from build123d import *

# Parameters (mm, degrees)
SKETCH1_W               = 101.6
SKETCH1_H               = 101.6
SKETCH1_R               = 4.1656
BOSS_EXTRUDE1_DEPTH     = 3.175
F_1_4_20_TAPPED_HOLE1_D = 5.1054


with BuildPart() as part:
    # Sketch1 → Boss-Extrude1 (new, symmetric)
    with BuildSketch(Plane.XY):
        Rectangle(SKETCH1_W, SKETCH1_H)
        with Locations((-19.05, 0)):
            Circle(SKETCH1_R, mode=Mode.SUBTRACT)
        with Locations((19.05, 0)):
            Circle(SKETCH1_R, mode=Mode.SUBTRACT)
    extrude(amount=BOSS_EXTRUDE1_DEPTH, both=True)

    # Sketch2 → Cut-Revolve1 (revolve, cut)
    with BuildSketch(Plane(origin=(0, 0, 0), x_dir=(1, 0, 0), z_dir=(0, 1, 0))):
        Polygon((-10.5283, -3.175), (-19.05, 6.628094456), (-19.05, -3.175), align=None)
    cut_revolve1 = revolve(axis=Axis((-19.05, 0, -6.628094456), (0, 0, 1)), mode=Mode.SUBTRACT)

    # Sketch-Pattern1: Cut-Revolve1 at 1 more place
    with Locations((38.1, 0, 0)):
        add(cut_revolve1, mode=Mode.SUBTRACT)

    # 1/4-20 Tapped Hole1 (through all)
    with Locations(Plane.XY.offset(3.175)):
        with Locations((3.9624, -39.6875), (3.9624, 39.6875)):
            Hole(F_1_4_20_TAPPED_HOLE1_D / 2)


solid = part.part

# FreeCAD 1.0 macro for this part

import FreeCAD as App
import Part
import Sketcher
from FreeCAD import Vector
Q = App.Units.Quantity


def add_polygon(sketch, points):
    """Adds a closed chain of lines whose ends are joined by coincident constraints."""
    first, n = sketch.GeometryCount, len(points)
    for a, b in zip(points, points[1:] + points[:1]):
        sketch.addGeometry(Part.LineSegment(App.Vector(*a, 0), App.Vector(*b, 0)), False)
    for i in range(n):
        sketch.addConstraint(Sketcher.Constraint("Coincident", first + i, 2, first + (i + 1) % n, 1))

doc = App.newDocument("Part")
body = doc.addObject("PartDesign::Body", "Body")

# Sketch on XY plane
sketch1 = body.newObject("Sketcher::SketchObject", "Sketch")
sketch1.AttachmentSupport = (doc.getObject("XY_Plane"), [""])
sketch1.MapMode = "FlatFace"
add_polygon(sketch1, [(-50.8, 50.8), (-50.8, -50.8), (50.8, -50.8), (50.8, 50.8)])  # lines 0-3
sketch1.addGeometry(Part.Circle(Vector(-19.1, 0, 0), Vector(0, 0, 1), 4.2), False)  # 4
sketch1.addGeometry(Part.Circle(Vector(19.1, 0, 0), Vector(0, 0, 1), 4.2), False)  # 5
sketch1.addConstraint([
    Sketcher.Constraint("Vertical", 0),
    Sketcher.Constraint("Horizontal", 1),
    Sketcher.Constraint("Vertical", 2),
    Sketcher.Constraint("Horizontal", 3),
    Sketcher.Constraint("Equal", 4, 5),
    Sketcher.Constraint("Symmetric", 4, 3, 5, 3, -1, 1),
    Sketcher.Constraint("Symmetric", 0, 2, 2, 2, -1, 1),
    Sketcher.Constraint("PointOnObject", 4, 3, -1),
    Sketcher.Constraint("Equal", 3, 0),
    Sketcher.Constraint("DistanceX", 1, 1, 1, 2, Q("4 in")),
    Sketcher.Constraint("Diameter", 4, Q("0.328 in")),
    Sketcher.Constraint("DistanceX", 4, 3, 5, 3, Q("1.5 in")),
])
pad1 = body.newObject("PartDesign::Pad", "Pad")
pad1.Profile = sketch1
pad1.Length = Q("0.25 in")
pad1.Midplane = True

# Sketch on XZ plane
sketch2 = body.newObject("Sketcher::SketchObject", "Sketch001")
sketch2.AttachmentSupport = (doc.getObject("XZ_Plane"), [""])
sketch2.MapMode = "FlatFace"
add_polygon(sketch2, [(-11, 3), (-19, -7), (-19, 3)])  # lines 0-2
sketch2.addGeometry(Part.LineSegment(Vector(-19, -7, 0), Vector(-19, 3, 0)), True)  # axis
sketch2.addConstraint([
    Sketcher.Constraint("Vertical", 1),
    Sketcher.Constraint("Horizontal", 2),
    Sketcher.Constraint("Vertical", 3),
    Sketcher.Constraint("Coincident", 3, 1, 0, 2),
    Sketcher.Constraint("Horizontal", 2, 2, 3, 2),
    Sketcher.Constraint("Angle", 0, Q("-131 deg")),
    Sketcher.Constraint("DistanceX", 0, 2, -1, 1, Q("0.75 in")),
    Sketcher.Constraint("DistanceX", 2, 1, 2, 2, Q("0.3355 in")),
    Sketcher.Constraint("DistanceY", -1, 1, 1, 2, Q("0.125 in")),
])
groove = body.newObject("PartDesign::Groove", "Groove")
groove.Profile = sketch2
groove.ReferenceAxis = (sketch2, ["Axis0"])
groove.Angle = 360
doc.recompute()

linearpattern = body.newObject("PartDesign::LinearPattern", "LinearPattern")
linearpattern.Originals = [groove]
linearpattern.Direction = (doc.getObject("X_Axis"), [""])
linearpattern.Mode = "offset"
linearpattern.Offset = Q("1.5 in")
linearpattern.Occurrences = 2
body.Tip = linearpattern

# Sketch on XY plane
sketch3 = body.newObject("Sketcher::SketchObject", "Sketch002")
sketch3.AttachmentSupport = (doc.getObject("XY_Plane"), [""])
sketch3.MapMode = "FlatFace"
sketch3.AttachmentOffset = App.Placement(Vector(0, 0, 0.125 * 25.4), App.Rotation())
sketch3.addGeometry([
    Part.Circle(Vector(4, -39.7, 0), Vector(0, 0, 1), 2.6),
    Part.Circle(Vector(4, 39.7, 0), Vector(0, 0, 1), 2.6),
], False)
sketch3.addConstraint([
    Sketcher.Constraint("Equal", 0, 1),
    Sketcher.Constraint("Symmetric", 0, 3, 1, 3, -1),
    Sketcher.Constraint("Diameter", 0, Q("0.201 in")),
    Sketcher.Constraint("DistanceX", -1, 1, 0, 3, Q("0.156 in")),
    Sketcher.Constraint("DistanceY", 0, 3, -1, 1, Q("1.5625 in")),
])
doc.recompute()
hole = body.newObject("PartDesign::Hole", "Hole")
hole.Profile = sketch3
hole.ThreadType = "None"
hole.Diameter = Q("0.201 in")
hole.DepthType = "ThroughAll"

doc.recompute()
